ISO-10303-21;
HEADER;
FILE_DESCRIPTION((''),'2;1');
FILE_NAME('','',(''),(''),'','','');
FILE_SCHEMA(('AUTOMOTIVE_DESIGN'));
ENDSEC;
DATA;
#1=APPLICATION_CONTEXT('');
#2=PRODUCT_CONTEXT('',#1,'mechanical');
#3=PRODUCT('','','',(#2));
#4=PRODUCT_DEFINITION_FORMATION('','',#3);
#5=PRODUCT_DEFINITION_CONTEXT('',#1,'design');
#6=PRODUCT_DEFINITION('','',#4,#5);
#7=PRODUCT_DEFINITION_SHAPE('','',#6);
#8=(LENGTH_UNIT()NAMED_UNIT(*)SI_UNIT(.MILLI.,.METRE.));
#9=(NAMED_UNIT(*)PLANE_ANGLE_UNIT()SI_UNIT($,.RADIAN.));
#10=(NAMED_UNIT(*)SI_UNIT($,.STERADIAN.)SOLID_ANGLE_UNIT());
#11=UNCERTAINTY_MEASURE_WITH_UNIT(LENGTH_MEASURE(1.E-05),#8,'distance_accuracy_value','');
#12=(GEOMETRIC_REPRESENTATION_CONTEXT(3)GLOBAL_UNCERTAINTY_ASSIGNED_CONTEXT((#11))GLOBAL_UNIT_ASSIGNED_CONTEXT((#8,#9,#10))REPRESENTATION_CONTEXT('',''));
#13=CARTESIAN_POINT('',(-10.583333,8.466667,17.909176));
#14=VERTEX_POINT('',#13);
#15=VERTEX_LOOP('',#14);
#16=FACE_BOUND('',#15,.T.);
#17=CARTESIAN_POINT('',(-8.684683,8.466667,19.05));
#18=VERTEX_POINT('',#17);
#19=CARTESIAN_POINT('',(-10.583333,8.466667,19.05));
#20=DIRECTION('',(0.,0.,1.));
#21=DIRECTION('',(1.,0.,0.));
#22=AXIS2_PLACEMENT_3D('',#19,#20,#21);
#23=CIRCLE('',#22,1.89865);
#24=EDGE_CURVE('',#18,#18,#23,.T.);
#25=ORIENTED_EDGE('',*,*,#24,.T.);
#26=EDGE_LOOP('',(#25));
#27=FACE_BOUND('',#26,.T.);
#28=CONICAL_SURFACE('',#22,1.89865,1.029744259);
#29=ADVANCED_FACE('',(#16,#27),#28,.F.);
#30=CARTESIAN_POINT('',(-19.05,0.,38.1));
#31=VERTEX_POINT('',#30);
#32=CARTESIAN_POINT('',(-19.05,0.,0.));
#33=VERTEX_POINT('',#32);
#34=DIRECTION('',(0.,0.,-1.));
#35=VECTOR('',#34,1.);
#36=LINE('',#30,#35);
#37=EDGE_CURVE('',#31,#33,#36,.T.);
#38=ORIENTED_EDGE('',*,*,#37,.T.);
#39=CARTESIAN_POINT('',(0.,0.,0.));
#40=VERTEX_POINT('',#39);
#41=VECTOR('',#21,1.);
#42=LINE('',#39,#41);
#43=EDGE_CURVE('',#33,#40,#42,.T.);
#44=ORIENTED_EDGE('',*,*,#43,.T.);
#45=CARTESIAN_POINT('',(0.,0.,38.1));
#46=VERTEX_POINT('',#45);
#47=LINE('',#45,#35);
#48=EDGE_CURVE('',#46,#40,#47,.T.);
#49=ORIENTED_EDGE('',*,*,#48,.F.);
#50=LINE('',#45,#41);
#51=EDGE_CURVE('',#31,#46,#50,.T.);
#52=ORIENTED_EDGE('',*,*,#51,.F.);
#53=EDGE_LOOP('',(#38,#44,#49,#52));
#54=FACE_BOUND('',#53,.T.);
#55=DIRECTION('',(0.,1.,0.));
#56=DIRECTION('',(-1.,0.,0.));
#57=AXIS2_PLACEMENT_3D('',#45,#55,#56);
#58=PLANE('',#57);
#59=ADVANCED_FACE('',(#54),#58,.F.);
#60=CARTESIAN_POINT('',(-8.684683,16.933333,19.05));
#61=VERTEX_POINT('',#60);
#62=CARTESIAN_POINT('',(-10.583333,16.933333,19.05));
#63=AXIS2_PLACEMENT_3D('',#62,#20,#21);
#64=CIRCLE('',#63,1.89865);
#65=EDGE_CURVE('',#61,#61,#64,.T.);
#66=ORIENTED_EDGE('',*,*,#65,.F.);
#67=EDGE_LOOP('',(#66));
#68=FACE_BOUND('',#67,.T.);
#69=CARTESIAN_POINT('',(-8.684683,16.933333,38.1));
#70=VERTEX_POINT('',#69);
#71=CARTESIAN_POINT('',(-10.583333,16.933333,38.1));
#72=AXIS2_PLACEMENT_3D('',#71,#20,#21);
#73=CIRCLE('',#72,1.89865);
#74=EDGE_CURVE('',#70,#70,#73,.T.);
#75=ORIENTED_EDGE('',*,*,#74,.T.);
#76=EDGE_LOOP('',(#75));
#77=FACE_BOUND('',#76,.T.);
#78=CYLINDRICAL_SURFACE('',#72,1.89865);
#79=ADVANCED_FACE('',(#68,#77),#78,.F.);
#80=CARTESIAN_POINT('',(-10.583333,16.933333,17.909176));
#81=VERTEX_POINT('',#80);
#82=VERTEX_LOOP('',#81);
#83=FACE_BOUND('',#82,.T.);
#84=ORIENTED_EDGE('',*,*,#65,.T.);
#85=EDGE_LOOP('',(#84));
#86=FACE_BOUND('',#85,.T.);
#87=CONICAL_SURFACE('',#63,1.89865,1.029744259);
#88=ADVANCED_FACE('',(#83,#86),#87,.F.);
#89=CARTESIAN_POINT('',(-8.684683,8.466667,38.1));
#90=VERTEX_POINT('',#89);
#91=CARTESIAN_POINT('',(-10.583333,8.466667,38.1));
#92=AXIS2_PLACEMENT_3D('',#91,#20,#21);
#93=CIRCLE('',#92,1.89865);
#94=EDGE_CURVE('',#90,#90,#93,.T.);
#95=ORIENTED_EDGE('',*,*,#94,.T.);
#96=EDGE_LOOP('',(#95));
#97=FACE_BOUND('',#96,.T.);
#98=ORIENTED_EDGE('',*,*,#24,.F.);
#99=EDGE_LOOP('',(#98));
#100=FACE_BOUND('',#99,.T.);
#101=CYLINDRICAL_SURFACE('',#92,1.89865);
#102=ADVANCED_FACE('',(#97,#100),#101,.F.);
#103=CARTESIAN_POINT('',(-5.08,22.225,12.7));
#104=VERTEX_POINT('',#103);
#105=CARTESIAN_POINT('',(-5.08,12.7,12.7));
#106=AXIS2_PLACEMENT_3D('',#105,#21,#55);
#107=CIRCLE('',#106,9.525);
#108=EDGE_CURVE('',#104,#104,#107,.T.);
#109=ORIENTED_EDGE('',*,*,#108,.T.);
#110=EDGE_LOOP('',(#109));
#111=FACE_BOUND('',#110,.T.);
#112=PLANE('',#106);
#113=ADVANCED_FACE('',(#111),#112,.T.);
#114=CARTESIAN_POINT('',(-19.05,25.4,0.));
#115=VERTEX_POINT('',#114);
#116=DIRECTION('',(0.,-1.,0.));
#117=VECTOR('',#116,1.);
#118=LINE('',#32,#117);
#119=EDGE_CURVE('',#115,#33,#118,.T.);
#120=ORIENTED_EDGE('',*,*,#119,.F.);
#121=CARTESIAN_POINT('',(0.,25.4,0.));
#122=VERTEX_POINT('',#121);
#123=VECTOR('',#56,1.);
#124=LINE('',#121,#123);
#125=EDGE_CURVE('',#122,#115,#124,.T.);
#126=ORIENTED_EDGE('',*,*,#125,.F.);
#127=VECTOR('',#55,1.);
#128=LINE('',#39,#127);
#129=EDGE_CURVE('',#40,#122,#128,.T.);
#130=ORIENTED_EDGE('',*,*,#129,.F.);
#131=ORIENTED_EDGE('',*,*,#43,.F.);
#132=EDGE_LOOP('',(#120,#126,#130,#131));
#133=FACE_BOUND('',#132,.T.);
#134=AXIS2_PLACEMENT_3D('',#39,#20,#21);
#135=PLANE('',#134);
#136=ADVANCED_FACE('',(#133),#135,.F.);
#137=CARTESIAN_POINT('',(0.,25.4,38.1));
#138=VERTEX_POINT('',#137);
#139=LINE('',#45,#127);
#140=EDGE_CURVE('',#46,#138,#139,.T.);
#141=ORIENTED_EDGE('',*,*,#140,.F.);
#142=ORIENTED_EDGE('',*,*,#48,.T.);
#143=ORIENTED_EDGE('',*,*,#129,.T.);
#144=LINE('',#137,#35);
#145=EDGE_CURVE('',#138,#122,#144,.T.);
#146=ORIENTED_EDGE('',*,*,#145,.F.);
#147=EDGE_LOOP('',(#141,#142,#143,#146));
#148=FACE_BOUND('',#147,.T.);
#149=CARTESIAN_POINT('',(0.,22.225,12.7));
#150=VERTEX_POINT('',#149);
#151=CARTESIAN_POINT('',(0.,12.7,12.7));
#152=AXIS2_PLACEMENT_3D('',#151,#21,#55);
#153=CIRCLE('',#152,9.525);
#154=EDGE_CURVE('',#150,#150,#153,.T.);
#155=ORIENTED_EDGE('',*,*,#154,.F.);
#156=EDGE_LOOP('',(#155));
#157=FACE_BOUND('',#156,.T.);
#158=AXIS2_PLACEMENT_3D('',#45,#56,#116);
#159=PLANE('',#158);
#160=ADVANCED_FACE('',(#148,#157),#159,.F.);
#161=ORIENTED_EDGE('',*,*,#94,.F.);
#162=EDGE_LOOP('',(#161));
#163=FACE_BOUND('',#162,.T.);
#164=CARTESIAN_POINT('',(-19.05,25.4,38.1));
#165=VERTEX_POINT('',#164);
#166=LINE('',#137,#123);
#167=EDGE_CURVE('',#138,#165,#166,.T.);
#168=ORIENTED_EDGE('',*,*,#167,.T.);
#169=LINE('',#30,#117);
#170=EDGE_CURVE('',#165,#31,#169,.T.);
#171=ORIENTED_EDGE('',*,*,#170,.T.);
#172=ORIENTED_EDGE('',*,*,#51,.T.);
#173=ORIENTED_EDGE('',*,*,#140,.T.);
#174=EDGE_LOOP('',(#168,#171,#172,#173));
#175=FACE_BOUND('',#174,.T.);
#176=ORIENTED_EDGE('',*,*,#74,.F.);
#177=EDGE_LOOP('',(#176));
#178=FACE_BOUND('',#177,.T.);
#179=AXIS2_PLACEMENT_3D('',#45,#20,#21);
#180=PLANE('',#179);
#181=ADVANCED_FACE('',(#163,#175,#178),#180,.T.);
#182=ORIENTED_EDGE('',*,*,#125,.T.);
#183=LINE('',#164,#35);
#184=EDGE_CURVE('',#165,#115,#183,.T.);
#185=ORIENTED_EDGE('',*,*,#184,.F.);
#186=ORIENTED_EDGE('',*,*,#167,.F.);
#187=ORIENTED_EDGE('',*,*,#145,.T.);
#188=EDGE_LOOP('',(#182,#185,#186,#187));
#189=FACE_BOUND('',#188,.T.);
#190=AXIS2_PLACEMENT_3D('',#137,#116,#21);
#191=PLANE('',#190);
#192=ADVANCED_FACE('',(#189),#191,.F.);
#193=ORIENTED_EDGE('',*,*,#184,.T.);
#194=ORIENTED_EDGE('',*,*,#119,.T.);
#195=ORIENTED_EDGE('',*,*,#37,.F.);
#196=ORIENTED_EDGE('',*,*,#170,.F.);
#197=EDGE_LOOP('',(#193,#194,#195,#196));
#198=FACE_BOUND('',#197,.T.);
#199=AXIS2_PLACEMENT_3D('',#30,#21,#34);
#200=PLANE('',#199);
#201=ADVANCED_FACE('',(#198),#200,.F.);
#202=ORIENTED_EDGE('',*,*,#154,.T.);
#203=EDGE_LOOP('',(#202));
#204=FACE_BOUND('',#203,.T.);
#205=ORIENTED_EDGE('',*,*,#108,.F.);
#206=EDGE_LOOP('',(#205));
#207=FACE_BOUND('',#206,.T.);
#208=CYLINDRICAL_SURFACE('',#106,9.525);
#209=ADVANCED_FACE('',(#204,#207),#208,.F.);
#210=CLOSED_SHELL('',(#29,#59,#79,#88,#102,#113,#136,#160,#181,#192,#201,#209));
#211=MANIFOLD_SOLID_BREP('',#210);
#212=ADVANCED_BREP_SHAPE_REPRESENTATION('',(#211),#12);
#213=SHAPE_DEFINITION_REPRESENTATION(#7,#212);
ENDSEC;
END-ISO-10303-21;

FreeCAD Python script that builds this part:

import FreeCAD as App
import Part
import Sketcher
Q = App.Units.Quantity


def add_polygon(sketch, points):
    """Adds a closed chain of lines whose ends are joined by coincident constraints."""
    first, n = sketch.GeometryCount, len(points)
    for a, b in zip(points, points[1:] + points[:1]):
        sketch.addGeometry(Part.LineSegment(App.Vector(*a, 0), App.Vector(*b, 0)), False)
    for i in range(n):
        sketch.addConstraint(Sketcher.Constraint("Coincident", first + i, 2, first + (i + 1) % n, 1))

doc = App.newDocument("Part")
body = doc.addObject("PartDesign::Body", "Body")

sketch1 = doc.addObject("Sketcher::SketchObject", "Sketch")
body.addObject(sketch1)
sketch1.AttachmentSupport = (doc.XY_Plane, [""])
sketch1.MapMode = "FlatFace"
add_polygon(sketch1, [(-19.05, 25.4), (-19.05, 0), (0, 0), (0, 25.4)])
sketch1.addConstraint([
    Sketcher.Constraint("Vertical", 0),
    Sketcher.Constraint("Horizontal", 1),
    Sketcher.Constraint("Vertical", 2),
    Sketcher.Constraint("Horizontal", 3),
    Sketcher.Constraint("Coincident", 1, 2, -1, 1),
    Sketcher.Constraint("DistanceY", 0, 2, 0, 1, Q("1 in")),
    Sketcher.Constraint("DistanceX", 1, 1, 1, 2, Q("0.75 in")),
])
pad1 = doc.addObject("PartDesign::Pad", "Pad")
body.addObject(pad1)
pad1.Profile = sketch1
pad1.Length = Q("1.5 in")

sketch2 = doc.addObject("Sketcher::SketchObject", "Sketch001")
body.addObject(sketch2)
sketch2.AttachmentSupport = (doc.XY_Plane, [""])
sketch2.MapMode = "FlatFace"
sketch2.AttachmentOffset = App.Placement(App.Vector(0, 0, 1.5 * 25.4), App.Rotation())
sketch2.addGeometry([
    Part.Circle(App.Vector(-10.583333, 16.933333, 0), App.Vector(0, 0, 1), 1.89865),
    Part.Circle(App.Vector(-10.583333, 8.466667, 0), App.Vector(0, 0, 1), 1.89865),
], False)
sketch2.addConstraint([
    Sketcher.Constraint("Equal", 0, 1),
    Sketcher.Constraint("Vertical", 0, 3, 1, 3),
    Sketcher.Constraint("Diameter", 0, Q("0.1495 in")),
    Sketcher.Constraint("DistanceX", 0, 3, -1, 1, Q("10.583333 mm")),
    Sketcher.Constraint("DistanceY", -1, 1, 0, 3, Q("16.933333 mm")),
    Sketcher.Constraint("DistanceY", -1, 1, 1, 3, Q("8.466667 mm")),
])
doc.recompute()
hole = doc.addObject("PartDesign::Hole", "Hole")
body.addObject(hole)
hole.Profile = sketch2
hole.ThreadType = "None"
hole.Diameter = Q("0.1495 in")
hole.DepthType = "Dimension"
hole.Depth = Q("0.75 in")
hole.DrillPoint = "Angled"
hole.DrillPointAngle = 118

sketch3 = doc.addObject("Sketcher::SketchObject", "Sketch002")
body.addObject(sketch3)
sketch3.AttachmentSupport = (doc.YZ_Plane, [""])
sketch3.MapMode = "FlatFace"
sketch3.addGeometry(Part.Circle(App.Vector(12.7, 12.7, 0), App.Vector(0, 0, 1), 9.525), False)
sketch3.addConstraint([
    Sketcher.Constraint("Diameter", 0, Q("0.75 in")),
    Sketcher.Constraint("DistanceX", -1, 1, 0, 3, Q("0.5 in")),
    Sketcher.Constraint("DistanceY", -1, 1, 0, 3, Q("0.5 in")),
])
pocket1 = doc.addObject("PartDesign::Pocket", "Pocket")
body.addObject(pocket1)
pocket1.Profile = sketch3
pocket1.Length = Q("0.2 in")

doc.recompute()
